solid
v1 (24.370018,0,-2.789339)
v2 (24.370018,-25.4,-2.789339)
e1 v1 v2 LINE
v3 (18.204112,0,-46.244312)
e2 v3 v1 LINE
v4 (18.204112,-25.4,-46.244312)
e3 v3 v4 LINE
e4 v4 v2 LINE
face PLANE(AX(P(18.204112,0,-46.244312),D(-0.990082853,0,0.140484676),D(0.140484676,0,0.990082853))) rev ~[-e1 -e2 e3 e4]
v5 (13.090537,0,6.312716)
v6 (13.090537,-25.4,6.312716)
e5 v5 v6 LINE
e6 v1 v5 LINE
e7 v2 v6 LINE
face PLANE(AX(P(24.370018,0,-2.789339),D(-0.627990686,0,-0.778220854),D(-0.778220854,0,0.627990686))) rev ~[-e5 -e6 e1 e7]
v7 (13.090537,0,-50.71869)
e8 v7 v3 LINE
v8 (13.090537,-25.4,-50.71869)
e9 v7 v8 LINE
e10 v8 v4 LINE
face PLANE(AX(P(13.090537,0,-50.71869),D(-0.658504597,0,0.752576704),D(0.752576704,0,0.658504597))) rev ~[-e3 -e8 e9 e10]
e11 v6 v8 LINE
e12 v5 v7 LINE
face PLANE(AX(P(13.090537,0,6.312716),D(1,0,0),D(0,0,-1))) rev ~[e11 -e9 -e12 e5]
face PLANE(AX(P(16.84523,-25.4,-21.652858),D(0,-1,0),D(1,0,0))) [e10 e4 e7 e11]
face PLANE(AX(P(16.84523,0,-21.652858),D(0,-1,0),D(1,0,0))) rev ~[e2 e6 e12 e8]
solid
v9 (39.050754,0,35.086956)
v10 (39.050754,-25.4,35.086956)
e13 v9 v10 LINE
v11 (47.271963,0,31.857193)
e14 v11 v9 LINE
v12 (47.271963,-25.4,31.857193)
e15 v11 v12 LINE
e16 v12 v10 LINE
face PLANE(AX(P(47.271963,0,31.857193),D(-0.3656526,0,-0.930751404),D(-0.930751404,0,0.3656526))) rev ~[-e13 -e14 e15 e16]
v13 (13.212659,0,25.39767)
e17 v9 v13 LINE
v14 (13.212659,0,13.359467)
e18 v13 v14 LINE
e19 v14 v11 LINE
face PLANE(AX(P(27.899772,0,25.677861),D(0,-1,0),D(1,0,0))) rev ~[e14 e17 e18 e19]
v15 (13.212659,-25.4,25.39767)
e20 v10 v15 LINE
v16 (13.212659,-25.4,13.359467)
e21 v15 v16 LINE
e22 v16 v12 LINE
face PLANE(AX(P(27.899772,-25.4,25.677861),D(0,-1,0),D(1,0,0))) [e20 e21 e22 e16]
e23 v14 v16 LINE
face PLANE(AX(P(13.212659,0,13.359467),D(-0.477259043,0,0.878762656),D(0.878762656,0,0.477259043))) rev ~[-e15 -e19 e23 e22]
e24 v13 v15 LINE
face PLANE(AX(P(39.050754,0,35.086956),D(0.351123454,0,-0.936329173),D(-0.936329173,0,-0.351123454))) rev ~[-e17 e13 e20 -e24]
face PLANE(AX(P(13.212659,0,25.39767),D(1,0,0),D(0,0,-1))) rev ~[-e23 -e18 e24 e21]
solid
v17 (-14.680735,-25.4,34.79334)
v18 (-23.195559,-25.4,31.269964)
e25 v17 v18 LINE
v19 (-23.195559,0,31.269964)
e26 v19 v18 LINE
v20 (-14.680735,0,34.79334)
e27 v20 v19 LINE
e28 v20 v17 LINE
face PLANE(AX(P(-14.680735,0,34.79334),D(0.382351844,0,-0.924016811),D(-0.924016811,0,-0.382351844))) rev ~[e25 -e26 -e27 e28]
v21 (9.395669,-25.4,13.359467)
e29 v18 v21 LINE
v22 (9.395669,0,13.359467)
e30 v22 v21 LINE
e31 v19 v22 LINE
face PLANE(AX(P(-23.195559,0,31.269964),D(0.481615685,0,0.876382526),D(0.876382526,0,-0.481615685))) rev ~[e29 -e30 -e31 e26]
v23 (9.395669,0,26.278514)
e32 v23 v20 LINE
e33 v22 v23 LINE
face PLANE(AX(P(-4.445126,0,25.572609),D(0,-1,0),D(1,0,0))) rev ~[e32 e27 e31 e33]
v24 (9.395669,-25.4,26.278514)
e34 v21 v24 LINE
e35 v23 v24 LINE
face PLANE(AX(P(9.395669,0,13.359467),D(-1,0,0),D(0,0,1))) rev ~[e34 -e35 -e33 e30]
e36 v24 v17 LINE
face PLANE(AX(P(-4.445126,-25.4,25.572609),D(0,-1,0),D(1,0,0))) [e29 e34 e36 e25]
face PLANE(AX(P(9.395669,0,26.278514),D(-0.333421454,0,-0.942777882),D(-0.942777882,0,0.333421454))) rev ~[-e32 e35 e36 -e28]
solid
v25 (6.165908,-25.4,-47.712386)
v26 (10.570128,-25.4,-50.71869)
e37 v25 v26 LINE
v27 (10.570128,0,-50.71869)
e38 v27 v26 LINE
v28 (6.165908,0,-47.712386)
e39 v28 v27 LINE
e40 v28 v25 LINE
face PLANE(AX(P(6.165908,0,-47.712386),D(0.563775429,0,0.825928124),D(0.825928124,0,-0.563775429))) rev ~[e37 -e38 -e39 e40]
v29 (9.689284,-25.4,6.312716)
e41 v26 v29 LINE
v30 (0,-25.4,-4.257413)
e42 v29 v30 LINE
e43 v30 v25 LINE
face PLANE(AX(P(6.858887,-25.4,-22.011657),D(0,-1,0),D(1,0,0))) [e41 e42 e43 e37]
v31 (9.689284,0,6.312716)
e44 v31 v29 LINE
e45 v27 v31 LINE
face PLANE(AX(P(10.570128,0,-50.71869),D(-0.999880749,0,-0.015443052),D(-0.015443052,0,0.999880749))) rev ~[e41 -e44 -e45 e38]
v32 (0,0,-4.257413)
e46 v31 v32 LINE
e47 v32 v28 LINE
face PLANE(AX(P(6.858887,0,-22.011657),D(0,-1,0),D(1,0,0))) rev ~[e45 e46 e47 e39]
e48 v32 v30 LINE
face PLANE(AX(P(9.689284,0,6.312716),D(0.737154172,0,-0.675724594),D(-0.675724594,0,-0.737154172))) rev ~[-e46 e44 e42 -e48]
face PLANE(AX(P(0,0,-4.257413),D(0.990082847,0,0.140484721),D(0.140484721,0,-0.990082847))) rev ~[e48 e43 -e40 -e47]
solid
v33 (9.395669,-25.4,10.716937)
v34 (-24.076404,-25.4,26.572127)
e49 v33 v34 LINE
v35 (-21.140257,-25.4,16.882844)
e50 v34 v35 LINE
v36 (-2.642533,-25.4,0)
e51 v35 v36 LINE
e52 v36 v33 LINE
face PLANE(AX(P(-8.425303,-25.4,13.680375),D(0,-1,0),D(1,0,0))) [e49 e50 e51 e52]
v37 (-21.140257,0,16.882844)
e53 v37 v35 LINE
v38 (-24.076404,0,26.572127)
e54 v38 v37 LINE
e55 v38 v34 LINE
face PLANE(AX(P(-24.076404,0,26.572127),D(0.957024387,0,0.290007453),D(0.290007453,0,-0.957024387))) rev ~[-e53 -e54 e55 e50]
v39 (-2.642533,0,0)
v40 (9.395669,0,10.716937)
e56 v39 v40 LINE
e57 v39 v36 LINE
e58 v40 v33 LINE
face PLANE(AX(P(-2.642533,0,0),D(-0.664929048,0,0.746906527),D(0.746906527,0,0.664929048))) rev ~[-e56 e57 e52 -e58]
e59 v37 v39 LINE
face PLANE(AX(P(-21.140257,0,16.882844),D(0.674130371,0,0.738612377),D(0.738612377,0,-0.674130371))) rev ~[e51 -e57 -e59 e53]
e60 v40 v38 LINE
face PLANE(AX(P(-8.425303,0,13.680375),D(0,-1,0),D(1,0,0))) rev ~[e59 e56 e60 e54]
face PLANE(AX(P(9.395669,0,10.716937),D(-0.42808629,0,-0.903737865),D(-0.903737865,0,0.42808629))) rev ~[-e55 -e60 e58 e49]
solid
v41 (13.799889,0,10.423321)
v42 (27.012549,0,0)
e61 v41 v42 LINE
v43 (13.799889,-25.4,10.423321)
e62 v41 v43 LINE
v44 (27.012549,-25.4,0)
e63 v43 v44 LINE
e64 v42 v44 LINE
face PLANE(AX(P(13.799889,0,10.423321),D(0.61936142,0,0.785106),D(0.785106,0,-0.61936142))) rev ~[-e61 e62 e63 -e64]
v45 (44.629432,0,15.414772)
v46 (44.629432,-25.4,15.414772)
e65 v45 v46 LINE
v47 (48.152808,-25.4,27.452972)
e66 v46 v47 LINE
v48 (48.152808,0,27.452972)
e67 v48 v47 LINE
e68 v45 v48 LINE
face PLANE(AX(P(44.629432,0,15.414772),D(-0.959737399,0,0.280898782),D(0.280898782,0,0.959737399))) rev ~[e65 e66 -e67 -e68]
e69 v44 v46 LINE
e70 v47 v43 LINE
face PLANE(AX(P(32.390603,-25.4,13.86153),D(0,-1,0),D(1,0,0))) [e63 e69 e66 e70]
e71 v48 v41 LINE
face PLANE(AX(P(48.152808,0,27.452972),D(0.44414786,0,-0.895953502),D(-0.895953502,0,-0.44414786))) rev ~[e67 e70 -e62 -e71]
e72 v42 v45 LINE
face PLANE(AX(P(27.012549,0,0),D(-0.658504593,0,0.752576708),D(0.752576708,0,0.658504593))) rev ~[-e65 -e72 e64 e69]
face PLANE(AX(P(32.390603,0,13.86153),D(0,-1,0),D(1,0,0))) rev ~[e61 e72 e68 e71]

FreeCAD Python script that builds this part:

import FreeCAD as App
import Part
import Sketcher

V = App.Vector
Q = App.Units.Quantity

doc = App.newDocument("Part")
body = doc.addObject("PartDesign::Body", "Body")
body.AllowCompound = True

sketch1 = body.newObject("Sketcher::SketchObject", "Sketch")
sketch1.AttachmentSupport = (doc.getObject("XZ_Plane"), [""])
sketch1.MapMode = "FlatFace"
sketch1.addGeometry(Part.LineSegment(V(-14.680735, 34.79334, 0), V(-23.195559, 31.269964, 0)), False)
sketch1.addGeometry(Part.LineSegment(V(-23.195559, 31.269964, 0), V(9.395669, 13.359467, 0)), False)
sketch1.addGeometry(Part.LineSegment(V(9.395669, 13.359467, 0), V(9.395669, 26.278514, 0)), False)
sketch1.addGeometry(Part.LineSegment(V(9.395669, 26.278514, 0), V(-14.680735, 34.79334, 0)), False)
sketch1.addGeometry(Part.LineSegment(V(39.050754, 35.086956, 0), V(13.212659, 25.39767, 0)), False)
sketch1.addGeometry(Part.LineSegment(V(13.212659, 25.39767, 0), V(13.212659, 13.359467, 0)), False)
sketch1.addGeometry(Part.LineSegment(V(13.212659, 13.359467, 0), V(47.271963, 31.857193, 0)), False)
sketch1.addGeometry(Part.LineSegment(V(47.271963, 31.857193, 0), V(39.050754, 35.086956, 0)), False)
sketch1.addGeometry(Part.LineSegment(V(9.395669, 10.716937, 0), V(-24.076404, 26.572127, 0)), False)
sketch1.addGeometry(Part.LineSegment(V(-24.076404, 26.572127, 0), V(-21.140257, 16.882844, 0)), False)
sketch1.addGeometry(Part.LineSegment(V(-21.140257, 16.882844, 0), V(-2.642533, 0, 0)), False)
sketch1.addGeometry(Part.LineSegment(V(-2.642533, 0, 0), V(9.395669, 10.716937, 0)), False)
sketch1.addGeometry(Part.LineSegment(V(44.629432, 15.414772, 0), V(48.152808, 27.452972, 0)), False)
sketch1.addGeometry(Part.LineSegment(V(48.152808, 27.452972, 0), V(13.799889, 10.423321, 0)), False)
sketch1.addGeometry(Part.LineSegment(V(13.799889, 10.423321, 0), V(27.012549, 0, 0)), False)
sketch1.addGeometry(Part.LineSegment(V(27.012549, 0, 0), V(44.629432, 15.414772, 0)), False)
sketch1.addGeometry(Part.LineSegment(V(18.204112, -46.244312, 0), V(24.370018, -2.789339, 0)), False)
sketch1.addGeometry(Part.LineSegment(V(24.370018, -2.789339, 0), V(13.090537, 6.312716, 0)), False)
sketch1.addGeometry(Part.LineSegment(V(13.090537, 6.312716, 0), V(13.090537, -50.71869, 0)), False)
sketch1.addGeometry(Part.LineSegment(V(13.090537, -50.71869, 0), V(18.204112, -46.244312, 0)), False)
sketch1.addGeometry(Part.LineSegment(V(10.570128, -50.71869, 0), V(9.689284, 6.312716, 0)), False)
sketch1.addGeometry(Part.LineSegment(V(9.689284, 6.312716, 0), V(0, -4.257413, 0)), False)
sketch1.addGeometry(Part.LineSegment(V(0, -4.257413, 0), V(6.165908, -47.712386, 0)), False)
sketch1.addGeometry(Part.LineSegment(V(6.165908, -47.712386, 0), V(10.570128, -50.71869, 0)), False)
sketch1.addConstraint(Sketcher.Constraint("Coincident", 0, 2, 1, 1))
sketch1.addConstraint(Sketcher.Constraint("Coincident", 1, 2, 2, 1))
sketch1.addConstraint(Sketcher.Constraint("Coincident", 2, 2, 3, 1))
sketch1.addConstraint(Sketcher.Constraint("Coincident", 3, 2, 0, 1))
sketch1.addConstraint(Sketcher.Constraint("Coincident", 4, 2, 5, 1))
sketch1.addConstraint(Sketcher.Constraint("Coincident", 5, 2, 6, 1))
sketch1.addConstraint(Sketcher.Constraint("Coincident", 6, 2, 7, 1))
sketch1.addConstraint(Sketcher.Constraint("Coincident", 7, 2, 4, 1))
sketch1.addConstraint(Sketcher.Constraint("Coincident", 8, 2, 9, 1))
sketch1.addConstraint(Sketcher.Constraint("Coincident", 9, 2, 10, 1))
sketch1.addConstraint(Sketcher.Constraint("Coincident", 10, 2, 11, 1))
sketch1.addConstraint(Sketcher.Constraint("Coincident", 11, 2, 8, 1))
sketch1.addConstraint(Sketcher.Constraint("Coincident", 12, 2, 13, 1))
sketch1.addConstraint(Sketcher.Constraint("Coincident", 13, 2, 14, 1))
sketch1.addConstraint(Sketcher.Constraint("Coincident", 14, 2, 15, 1))
sketch1.addConstraint(Sketcher.Constraint("Coincident", 15, 2, 12, 1))
sketch1.addConstraint(Sketcher.Constraint("Coincident", 16, 2, 17, 1))
sketch1.addConstraint(Sketcher.Constraint("Coincident", 17, 2, 18, 1))
sketch1.addConstraint(Sketcher.Constraint("Coincident", 18, 2, 19, 1))
sketch1.addConstraint(Sketcher.Constraint("Coincident", 19, 2, 16, 1))
sketch1.addConstraint(Sketcher.Constraint("Coincident", 20, 2, 21, 1))
sketch1.addConstraint(Sketcher.Constraint("Coincident", 21, 2, 22, 1))
sketch1.addConstraint(Sketcher.Constraint("Coincident", 22, 2, 23, 1))
sketch1.addConstraint(Sketcher.Constraint("Coincident", 23, 2, 20, 1))
sketch1.addConstraint(Sketcher.Constraint("Vertical", 2))
sketch1.addConstraint(Sketcher.Constraint("Vertical", 5))
sketch1.addConstraint(Sketcher.Constraint("Vertical", 18))
sketch1.addConstraint(Sketcher.Constraint("PointOnObject", 10, 2, -1))
sketch1.addConstraint(Sketcher.Constraint("PointOnObject", 14, 2, -1))
sketch1.addConstraint(Sketcher.Constraint("PointOnObject", 21, 2, -2))
sketch1.addConstraint(Sketcher.Constraint("Parallel", 15, 19))
sketch1.addConstraint(Sketcher.Constraint("Horizontal", 1, 2, 5, 2))
sketch1.addConstraint(Sketcher.Constraint("Horizontal", 17, 2, 20, 2))
sketch1.addConstraint(Sketcher.Constraint("Horizontal", 18, 2, 23, 2))
sketch1.addConstraint(Sketcher.Constraint("Vertical", 2, 2, 11, 2))
sketch1.addConstraint(Sketcher.Constraint("Equal", 16, 22))
sketch1.addConstraint(Sketcher.Constraint("Distance", 13, 38.342301))
sketch1.addConstraint(Sketcher.Constraint("DistanceY", 4, 2, 12, 2, 2.055302))
sketch1.addConstraint(Sketcher.Constraint("DistanceY", 15, 2, 12, 2, 12.0382))
sketch1.addConstraint(Sketcher.Constraint("Distance", 0, 9.21501))
sketch1.addConstraint(Sketcher.Constraint("Distance", 1, 37.188359))
sketch1.addConstraint(Sketcher.Constraint("Distance", 6, 38.758251))
sketch1.addConstraint(Sketcher.Constraint("Distance", 8, 37.037369))
sketch1.addConstraint(Sketcher.Constraint("Distance", 14, 16.829142))
sketch1.addConstraint(Sketcher.Constraint("Distance", 16, 43.890239))
sketch1.addConstraint(Sketcher.Constraint("Distance", 23, 5.332449))
sketch1.addConstraint(Sketcher.Constraint("DistanceY", 2, 1, 2, 2, 12.919047))
sketch1.addConstraint(Sketcher.Constraint("DistanceY", 5, 2, 5, 1, 12.038203))
sketch1.addConstraint(Sketcher.Constraint("DistanceY", 18, 2, 18, 1, 57.031406))
sketch1.addConstraint(Sketcher.Constraint("DistanceX", 0, 2, -1, 1, 23.195559))
sketch1.addConstraint(Sketcher.Constraint("DistanceX", -1, 1, 1, 2, 9.395669))
sketch1.addConstraint(Sketcher.Constraint("DistanceY", -1, 1, 3, 2, 34.79334))
sketch1.addConstraint(Sketcher.Constraint("DistanceX", -1, 1, 4, 2, 13.212659))
sketch1.addConstraint(Sketcher.Constraint("DistanceY", -1, 1, 4, 2, 25.39767))
sketch1.addConstraint(Sketcher.Constraint("DistanceX", -1, 1, 13, 2, 13.799889))
sketch1.addConstraint(Sketcher.Constraint("DistanceY", -1, 1, 13, 2, 10.423321))
sketch1.addConstraint(Sketcher.Constraint("DistanceX", -1, 1, 16, 2, 24.370018))
sketch1.addConstraint(Sketcher.Constraint("DistanceY", 16, 2, -1, 1, 2.789339))
sketch1.addConstraint(Sketcher.Constraint("DistanceY", 18, 2, -1, 1, 50.71869))
sketch1.addConstraint(Sketcher.Constraint("DistanceX", -1, 1, 19, 2, 18.204112))
sketch1.addConstraint(Sketcher.Constraint("DistanceY", 2, 2, 6, 2, 5.578679))
sketch1.addConstraint(Sketcher.Constraint("DistanceX", 7, 2, 6, 2, 8.221209))
sketch1.addConstraint(Sketcher.Constraint("DistanceY", 5, 2, 7, 2, 21.727489))
sketch1.addConstraint(Sketcher.Constraint("DistanceX", 8, 2, 3, 2, 9.395669))
sketch1.addConstraint(Sketcher.Constraint("DistanceY", 1, 2, 8, 2, 13.21266))
sketch1.addConstraint(Sketcher.Constraint("DistanceY", 9, 2, 0, 2, 14.38712))
sketch1.addConstraint(Sketcher.Constraint("DistanceX", 9, 2, 3, 2, 6.459522))
sketch1.addConstraint(Sketcher.Constraint("DistanceX", 15, 2, 6, 2, 2.642531))
sketch1.addConstraint(Sketcher.Constraint("DistanceX", 10, 2, 18, 2, 15.73307))
sketch1.addConstraint(Sketcher.Constraint("DistanceY", 21, 2, 20, 2, 10.570129))
sketch1.addConstraint(Sketcher.Constraint("DistanceX", 22, 2, 18, 2, 6.924629))
sketch1.addConstraint(Sketcher.Constraint("Distance", 20, 57.038208))
pad1 = body.newObject("PartDesign::Pad", "Pad")
pad1.Profile = sketch1
pad1.Length = Q("1 in")

doc.recompute()
